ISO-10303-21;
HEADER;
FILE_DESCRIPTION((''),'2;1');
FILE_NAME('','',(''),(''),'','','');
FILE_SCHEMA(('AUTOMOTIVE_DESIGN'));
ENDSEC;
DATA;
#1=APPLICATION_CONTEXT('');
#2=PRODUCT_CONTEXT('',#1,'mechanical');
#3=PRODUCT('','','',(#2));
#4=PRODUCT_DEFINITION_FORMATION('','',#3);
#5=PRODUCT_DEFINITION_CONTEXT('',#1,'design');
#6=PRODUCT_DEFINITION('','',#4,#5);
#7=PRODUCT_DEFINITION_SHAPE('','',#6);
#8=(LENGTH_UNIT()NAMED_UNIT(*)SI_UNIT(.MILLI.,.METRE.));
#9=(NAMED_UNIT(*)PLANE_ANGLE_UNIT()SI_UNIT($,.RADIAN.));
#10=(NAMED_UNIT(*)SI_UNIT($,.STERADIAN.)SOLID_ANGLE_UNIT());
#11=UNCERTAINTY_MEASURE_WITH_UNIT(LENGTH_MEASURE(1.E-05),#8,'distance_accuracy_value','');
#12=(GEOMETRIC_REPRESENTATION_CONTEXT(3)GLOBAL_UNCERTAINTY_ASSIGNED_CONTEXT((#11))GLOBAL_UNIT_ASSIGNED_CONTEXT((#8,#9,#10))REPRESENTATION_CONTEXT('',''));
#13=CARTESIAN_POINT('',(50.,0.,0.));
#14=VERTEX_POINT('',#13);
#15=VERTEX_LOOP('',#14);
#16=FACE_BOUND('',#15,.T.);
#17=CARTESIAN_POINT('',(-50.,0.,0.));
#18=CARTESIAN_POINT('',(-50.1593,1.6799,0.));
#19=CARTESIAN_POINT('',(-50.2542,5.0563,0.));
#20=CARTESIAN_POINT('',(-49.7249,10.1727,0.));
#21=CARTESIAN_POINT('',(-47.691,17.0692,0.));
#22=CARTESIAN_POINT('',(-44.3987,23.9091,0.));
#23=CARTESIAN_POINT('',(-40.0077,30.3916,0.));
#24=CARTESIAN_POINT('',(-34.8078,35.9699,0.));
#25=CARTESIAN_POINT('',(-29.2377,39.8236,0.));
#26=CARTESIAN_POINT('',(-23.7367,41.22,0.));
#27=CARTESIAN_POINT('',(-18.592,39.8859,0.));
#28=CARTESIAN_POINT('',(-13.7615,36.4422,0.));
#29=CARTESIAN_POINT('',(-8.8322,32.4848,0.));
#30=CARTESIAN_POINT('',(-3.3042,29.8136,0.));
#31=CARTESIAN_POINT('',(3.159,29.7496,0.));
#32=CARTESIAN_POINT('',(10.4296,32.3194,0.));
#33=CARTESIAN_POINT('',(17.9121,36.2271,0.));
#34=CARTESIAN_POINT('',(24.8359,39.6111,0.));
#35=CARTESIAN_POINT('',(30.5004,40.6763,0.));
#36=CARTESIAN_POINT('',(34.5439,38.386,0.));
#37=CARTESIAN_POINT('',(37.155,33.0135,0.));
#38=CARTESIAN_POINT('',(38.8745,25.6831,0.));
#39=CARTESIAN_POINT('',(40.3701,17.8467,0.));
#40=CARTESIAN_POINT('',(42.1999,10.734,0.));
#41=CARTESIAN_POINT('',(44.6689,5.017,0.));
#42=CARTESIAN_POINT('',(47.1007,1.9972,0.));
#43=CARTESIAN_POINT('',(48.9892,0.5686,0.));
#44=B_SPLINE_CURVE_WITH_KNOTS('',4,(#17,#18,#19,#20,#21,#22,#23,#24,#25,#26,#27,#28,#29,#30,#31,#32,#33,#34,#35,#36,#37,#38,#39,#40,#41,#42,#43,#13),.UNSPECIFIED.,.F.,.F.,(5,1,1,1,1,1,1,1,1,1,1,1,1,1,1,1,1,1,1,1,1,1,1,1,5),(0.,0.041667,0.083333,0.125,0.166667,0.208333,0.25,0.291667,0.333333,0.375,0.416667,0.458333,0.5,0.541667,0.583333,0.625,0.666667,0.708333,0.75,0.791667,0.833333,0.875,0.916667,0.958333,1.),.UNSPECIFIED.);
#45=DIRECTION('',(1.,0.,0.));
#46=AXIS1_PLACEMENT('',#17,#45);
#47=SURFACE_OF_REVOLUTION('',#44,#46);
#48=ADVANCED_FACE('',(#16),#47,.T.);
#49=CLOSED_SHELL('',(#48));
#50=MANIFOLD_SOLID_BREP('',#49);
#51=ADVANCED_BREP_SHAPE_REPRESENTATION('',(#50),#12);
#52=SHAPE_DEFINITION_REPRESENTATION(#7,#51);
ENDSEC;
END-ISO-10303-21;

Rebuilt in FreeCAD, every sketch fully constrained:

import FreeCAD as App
import Part
import Sketcher

doc = App.newDocument("Part")
params = doc.addObject("Spreadsheet::Sheet", "Params")
for row, (alias, value) in enumerate([
    ("revolution_angle", "360 deg"),
], start=1):
    params.set(f"A{row}", alias)
    params.set(f"B{row}", "=" + value)
    params.setAlias(f"B{row}", alias)

body = doc.addObject("PartDesign::Body", "Body")

# Sketch on XY plane
sketch1 = body.newObject("Sketcher::SketchObject", "Sketch")
sketch1.AttachmentSupport = (doc.getObject("XY_Plane"), [""])
sketch1.MapMode = "FlatFace"
sketch1.addGeometry([
    Part.BSplineCurve([App.Vector(-50, 0, 0), App.Vector(-50.1593, 1.6799, 0), App.Vector(-50.2542, 5.0563, 0), App.Vector(-49.7249, 10.1727, 0), App.Vector(-47.691, 17.0692, 0), App.Vector(-44.3987, 23.9091, 0), App.Vector(-40.0077, 30.3916, 0), App.Vector(-34.8078, 35.9699, 0), App.Vector(-29.2377, 39.8236, 0), App.Vector(-23.7367, 41.22, 0), App.Vector(-18.592, 39.8859, 0), App.Vector(-13.7615, 36.4422, 0), App.Vector(-8.8322, 32.4848, 0), App.Vector(-3.3042, 29.8136, 0), App.Vector(3.159, 29.7496, 0), App.Vector(10.4296, 32.3194, 0), App.Vector(17.9121, 36.2271, 0), App.Vector(24.8359, 39.6111, 0), App.Vector(30.5004, 40.6763, 0), App.Vector(34.5439, 38.386, 0), App.Vector(37.155, 33.0135, 0), App.Vector(38.8745, 25.6831, 0), App.Vector(40.3701, 17.8467, 0), App.Vector(42.1999, 10.734, 0), App.Vector(44.6689, 5.017, 0), App.Vector(47.1007, 1.9972, 0), App.Vector(48.9892, 0.5686, 0), App.Vector(50, 0, 0)], [5, 1, 1, 1, 1, 1, 1, 1, 1, 1, 1, 1, 1, 1, 1, 1, 1, 1, 1, 1, 1, 1, 1, 1, 5], [0, 0.041667, 0.083333, 0.125, 0.166667, 0.208333, 0.25, 0.291667, 0.333333, 0.375, 0.416667, 0.458333, 0.5, 0.541667, 0.583333, 0.625, 0.666667, 0.708333, 0.75, 0.791667, 0.833333, 0.875, 0.916667, 0.958333, 1], False, 4, [1, 1, 1, 1, 1, 1, 1, 1, 1, 1, 1, 1, 1, 1, 1, 1, 1, 1, 1, 1, 1, 1, 1, 1, 1, 1, 1, 1], False),
    Part.LineSegment(App.Vector(-50, 0, 0), App.Vector(50, 0, 0)),
], False)
sketch1.addConstraint([
    Sketcher.Constraint("Block", 0),
    Sketcher.Constraint("Coincident", 0, 1, 1, 1),
    Sketcher.Constraint("Coincident", 1, 2, 0, 2),
])
revolution = body.newObject("PartDesign::Revolution", "Revolution")
revolution.Profile = sketch1
revolution.ReferenceAxis = (sketch1, ["H_Axis"])
revolution.setExpression("Angle", "Params.revolution_angle")

doc.recompute()
